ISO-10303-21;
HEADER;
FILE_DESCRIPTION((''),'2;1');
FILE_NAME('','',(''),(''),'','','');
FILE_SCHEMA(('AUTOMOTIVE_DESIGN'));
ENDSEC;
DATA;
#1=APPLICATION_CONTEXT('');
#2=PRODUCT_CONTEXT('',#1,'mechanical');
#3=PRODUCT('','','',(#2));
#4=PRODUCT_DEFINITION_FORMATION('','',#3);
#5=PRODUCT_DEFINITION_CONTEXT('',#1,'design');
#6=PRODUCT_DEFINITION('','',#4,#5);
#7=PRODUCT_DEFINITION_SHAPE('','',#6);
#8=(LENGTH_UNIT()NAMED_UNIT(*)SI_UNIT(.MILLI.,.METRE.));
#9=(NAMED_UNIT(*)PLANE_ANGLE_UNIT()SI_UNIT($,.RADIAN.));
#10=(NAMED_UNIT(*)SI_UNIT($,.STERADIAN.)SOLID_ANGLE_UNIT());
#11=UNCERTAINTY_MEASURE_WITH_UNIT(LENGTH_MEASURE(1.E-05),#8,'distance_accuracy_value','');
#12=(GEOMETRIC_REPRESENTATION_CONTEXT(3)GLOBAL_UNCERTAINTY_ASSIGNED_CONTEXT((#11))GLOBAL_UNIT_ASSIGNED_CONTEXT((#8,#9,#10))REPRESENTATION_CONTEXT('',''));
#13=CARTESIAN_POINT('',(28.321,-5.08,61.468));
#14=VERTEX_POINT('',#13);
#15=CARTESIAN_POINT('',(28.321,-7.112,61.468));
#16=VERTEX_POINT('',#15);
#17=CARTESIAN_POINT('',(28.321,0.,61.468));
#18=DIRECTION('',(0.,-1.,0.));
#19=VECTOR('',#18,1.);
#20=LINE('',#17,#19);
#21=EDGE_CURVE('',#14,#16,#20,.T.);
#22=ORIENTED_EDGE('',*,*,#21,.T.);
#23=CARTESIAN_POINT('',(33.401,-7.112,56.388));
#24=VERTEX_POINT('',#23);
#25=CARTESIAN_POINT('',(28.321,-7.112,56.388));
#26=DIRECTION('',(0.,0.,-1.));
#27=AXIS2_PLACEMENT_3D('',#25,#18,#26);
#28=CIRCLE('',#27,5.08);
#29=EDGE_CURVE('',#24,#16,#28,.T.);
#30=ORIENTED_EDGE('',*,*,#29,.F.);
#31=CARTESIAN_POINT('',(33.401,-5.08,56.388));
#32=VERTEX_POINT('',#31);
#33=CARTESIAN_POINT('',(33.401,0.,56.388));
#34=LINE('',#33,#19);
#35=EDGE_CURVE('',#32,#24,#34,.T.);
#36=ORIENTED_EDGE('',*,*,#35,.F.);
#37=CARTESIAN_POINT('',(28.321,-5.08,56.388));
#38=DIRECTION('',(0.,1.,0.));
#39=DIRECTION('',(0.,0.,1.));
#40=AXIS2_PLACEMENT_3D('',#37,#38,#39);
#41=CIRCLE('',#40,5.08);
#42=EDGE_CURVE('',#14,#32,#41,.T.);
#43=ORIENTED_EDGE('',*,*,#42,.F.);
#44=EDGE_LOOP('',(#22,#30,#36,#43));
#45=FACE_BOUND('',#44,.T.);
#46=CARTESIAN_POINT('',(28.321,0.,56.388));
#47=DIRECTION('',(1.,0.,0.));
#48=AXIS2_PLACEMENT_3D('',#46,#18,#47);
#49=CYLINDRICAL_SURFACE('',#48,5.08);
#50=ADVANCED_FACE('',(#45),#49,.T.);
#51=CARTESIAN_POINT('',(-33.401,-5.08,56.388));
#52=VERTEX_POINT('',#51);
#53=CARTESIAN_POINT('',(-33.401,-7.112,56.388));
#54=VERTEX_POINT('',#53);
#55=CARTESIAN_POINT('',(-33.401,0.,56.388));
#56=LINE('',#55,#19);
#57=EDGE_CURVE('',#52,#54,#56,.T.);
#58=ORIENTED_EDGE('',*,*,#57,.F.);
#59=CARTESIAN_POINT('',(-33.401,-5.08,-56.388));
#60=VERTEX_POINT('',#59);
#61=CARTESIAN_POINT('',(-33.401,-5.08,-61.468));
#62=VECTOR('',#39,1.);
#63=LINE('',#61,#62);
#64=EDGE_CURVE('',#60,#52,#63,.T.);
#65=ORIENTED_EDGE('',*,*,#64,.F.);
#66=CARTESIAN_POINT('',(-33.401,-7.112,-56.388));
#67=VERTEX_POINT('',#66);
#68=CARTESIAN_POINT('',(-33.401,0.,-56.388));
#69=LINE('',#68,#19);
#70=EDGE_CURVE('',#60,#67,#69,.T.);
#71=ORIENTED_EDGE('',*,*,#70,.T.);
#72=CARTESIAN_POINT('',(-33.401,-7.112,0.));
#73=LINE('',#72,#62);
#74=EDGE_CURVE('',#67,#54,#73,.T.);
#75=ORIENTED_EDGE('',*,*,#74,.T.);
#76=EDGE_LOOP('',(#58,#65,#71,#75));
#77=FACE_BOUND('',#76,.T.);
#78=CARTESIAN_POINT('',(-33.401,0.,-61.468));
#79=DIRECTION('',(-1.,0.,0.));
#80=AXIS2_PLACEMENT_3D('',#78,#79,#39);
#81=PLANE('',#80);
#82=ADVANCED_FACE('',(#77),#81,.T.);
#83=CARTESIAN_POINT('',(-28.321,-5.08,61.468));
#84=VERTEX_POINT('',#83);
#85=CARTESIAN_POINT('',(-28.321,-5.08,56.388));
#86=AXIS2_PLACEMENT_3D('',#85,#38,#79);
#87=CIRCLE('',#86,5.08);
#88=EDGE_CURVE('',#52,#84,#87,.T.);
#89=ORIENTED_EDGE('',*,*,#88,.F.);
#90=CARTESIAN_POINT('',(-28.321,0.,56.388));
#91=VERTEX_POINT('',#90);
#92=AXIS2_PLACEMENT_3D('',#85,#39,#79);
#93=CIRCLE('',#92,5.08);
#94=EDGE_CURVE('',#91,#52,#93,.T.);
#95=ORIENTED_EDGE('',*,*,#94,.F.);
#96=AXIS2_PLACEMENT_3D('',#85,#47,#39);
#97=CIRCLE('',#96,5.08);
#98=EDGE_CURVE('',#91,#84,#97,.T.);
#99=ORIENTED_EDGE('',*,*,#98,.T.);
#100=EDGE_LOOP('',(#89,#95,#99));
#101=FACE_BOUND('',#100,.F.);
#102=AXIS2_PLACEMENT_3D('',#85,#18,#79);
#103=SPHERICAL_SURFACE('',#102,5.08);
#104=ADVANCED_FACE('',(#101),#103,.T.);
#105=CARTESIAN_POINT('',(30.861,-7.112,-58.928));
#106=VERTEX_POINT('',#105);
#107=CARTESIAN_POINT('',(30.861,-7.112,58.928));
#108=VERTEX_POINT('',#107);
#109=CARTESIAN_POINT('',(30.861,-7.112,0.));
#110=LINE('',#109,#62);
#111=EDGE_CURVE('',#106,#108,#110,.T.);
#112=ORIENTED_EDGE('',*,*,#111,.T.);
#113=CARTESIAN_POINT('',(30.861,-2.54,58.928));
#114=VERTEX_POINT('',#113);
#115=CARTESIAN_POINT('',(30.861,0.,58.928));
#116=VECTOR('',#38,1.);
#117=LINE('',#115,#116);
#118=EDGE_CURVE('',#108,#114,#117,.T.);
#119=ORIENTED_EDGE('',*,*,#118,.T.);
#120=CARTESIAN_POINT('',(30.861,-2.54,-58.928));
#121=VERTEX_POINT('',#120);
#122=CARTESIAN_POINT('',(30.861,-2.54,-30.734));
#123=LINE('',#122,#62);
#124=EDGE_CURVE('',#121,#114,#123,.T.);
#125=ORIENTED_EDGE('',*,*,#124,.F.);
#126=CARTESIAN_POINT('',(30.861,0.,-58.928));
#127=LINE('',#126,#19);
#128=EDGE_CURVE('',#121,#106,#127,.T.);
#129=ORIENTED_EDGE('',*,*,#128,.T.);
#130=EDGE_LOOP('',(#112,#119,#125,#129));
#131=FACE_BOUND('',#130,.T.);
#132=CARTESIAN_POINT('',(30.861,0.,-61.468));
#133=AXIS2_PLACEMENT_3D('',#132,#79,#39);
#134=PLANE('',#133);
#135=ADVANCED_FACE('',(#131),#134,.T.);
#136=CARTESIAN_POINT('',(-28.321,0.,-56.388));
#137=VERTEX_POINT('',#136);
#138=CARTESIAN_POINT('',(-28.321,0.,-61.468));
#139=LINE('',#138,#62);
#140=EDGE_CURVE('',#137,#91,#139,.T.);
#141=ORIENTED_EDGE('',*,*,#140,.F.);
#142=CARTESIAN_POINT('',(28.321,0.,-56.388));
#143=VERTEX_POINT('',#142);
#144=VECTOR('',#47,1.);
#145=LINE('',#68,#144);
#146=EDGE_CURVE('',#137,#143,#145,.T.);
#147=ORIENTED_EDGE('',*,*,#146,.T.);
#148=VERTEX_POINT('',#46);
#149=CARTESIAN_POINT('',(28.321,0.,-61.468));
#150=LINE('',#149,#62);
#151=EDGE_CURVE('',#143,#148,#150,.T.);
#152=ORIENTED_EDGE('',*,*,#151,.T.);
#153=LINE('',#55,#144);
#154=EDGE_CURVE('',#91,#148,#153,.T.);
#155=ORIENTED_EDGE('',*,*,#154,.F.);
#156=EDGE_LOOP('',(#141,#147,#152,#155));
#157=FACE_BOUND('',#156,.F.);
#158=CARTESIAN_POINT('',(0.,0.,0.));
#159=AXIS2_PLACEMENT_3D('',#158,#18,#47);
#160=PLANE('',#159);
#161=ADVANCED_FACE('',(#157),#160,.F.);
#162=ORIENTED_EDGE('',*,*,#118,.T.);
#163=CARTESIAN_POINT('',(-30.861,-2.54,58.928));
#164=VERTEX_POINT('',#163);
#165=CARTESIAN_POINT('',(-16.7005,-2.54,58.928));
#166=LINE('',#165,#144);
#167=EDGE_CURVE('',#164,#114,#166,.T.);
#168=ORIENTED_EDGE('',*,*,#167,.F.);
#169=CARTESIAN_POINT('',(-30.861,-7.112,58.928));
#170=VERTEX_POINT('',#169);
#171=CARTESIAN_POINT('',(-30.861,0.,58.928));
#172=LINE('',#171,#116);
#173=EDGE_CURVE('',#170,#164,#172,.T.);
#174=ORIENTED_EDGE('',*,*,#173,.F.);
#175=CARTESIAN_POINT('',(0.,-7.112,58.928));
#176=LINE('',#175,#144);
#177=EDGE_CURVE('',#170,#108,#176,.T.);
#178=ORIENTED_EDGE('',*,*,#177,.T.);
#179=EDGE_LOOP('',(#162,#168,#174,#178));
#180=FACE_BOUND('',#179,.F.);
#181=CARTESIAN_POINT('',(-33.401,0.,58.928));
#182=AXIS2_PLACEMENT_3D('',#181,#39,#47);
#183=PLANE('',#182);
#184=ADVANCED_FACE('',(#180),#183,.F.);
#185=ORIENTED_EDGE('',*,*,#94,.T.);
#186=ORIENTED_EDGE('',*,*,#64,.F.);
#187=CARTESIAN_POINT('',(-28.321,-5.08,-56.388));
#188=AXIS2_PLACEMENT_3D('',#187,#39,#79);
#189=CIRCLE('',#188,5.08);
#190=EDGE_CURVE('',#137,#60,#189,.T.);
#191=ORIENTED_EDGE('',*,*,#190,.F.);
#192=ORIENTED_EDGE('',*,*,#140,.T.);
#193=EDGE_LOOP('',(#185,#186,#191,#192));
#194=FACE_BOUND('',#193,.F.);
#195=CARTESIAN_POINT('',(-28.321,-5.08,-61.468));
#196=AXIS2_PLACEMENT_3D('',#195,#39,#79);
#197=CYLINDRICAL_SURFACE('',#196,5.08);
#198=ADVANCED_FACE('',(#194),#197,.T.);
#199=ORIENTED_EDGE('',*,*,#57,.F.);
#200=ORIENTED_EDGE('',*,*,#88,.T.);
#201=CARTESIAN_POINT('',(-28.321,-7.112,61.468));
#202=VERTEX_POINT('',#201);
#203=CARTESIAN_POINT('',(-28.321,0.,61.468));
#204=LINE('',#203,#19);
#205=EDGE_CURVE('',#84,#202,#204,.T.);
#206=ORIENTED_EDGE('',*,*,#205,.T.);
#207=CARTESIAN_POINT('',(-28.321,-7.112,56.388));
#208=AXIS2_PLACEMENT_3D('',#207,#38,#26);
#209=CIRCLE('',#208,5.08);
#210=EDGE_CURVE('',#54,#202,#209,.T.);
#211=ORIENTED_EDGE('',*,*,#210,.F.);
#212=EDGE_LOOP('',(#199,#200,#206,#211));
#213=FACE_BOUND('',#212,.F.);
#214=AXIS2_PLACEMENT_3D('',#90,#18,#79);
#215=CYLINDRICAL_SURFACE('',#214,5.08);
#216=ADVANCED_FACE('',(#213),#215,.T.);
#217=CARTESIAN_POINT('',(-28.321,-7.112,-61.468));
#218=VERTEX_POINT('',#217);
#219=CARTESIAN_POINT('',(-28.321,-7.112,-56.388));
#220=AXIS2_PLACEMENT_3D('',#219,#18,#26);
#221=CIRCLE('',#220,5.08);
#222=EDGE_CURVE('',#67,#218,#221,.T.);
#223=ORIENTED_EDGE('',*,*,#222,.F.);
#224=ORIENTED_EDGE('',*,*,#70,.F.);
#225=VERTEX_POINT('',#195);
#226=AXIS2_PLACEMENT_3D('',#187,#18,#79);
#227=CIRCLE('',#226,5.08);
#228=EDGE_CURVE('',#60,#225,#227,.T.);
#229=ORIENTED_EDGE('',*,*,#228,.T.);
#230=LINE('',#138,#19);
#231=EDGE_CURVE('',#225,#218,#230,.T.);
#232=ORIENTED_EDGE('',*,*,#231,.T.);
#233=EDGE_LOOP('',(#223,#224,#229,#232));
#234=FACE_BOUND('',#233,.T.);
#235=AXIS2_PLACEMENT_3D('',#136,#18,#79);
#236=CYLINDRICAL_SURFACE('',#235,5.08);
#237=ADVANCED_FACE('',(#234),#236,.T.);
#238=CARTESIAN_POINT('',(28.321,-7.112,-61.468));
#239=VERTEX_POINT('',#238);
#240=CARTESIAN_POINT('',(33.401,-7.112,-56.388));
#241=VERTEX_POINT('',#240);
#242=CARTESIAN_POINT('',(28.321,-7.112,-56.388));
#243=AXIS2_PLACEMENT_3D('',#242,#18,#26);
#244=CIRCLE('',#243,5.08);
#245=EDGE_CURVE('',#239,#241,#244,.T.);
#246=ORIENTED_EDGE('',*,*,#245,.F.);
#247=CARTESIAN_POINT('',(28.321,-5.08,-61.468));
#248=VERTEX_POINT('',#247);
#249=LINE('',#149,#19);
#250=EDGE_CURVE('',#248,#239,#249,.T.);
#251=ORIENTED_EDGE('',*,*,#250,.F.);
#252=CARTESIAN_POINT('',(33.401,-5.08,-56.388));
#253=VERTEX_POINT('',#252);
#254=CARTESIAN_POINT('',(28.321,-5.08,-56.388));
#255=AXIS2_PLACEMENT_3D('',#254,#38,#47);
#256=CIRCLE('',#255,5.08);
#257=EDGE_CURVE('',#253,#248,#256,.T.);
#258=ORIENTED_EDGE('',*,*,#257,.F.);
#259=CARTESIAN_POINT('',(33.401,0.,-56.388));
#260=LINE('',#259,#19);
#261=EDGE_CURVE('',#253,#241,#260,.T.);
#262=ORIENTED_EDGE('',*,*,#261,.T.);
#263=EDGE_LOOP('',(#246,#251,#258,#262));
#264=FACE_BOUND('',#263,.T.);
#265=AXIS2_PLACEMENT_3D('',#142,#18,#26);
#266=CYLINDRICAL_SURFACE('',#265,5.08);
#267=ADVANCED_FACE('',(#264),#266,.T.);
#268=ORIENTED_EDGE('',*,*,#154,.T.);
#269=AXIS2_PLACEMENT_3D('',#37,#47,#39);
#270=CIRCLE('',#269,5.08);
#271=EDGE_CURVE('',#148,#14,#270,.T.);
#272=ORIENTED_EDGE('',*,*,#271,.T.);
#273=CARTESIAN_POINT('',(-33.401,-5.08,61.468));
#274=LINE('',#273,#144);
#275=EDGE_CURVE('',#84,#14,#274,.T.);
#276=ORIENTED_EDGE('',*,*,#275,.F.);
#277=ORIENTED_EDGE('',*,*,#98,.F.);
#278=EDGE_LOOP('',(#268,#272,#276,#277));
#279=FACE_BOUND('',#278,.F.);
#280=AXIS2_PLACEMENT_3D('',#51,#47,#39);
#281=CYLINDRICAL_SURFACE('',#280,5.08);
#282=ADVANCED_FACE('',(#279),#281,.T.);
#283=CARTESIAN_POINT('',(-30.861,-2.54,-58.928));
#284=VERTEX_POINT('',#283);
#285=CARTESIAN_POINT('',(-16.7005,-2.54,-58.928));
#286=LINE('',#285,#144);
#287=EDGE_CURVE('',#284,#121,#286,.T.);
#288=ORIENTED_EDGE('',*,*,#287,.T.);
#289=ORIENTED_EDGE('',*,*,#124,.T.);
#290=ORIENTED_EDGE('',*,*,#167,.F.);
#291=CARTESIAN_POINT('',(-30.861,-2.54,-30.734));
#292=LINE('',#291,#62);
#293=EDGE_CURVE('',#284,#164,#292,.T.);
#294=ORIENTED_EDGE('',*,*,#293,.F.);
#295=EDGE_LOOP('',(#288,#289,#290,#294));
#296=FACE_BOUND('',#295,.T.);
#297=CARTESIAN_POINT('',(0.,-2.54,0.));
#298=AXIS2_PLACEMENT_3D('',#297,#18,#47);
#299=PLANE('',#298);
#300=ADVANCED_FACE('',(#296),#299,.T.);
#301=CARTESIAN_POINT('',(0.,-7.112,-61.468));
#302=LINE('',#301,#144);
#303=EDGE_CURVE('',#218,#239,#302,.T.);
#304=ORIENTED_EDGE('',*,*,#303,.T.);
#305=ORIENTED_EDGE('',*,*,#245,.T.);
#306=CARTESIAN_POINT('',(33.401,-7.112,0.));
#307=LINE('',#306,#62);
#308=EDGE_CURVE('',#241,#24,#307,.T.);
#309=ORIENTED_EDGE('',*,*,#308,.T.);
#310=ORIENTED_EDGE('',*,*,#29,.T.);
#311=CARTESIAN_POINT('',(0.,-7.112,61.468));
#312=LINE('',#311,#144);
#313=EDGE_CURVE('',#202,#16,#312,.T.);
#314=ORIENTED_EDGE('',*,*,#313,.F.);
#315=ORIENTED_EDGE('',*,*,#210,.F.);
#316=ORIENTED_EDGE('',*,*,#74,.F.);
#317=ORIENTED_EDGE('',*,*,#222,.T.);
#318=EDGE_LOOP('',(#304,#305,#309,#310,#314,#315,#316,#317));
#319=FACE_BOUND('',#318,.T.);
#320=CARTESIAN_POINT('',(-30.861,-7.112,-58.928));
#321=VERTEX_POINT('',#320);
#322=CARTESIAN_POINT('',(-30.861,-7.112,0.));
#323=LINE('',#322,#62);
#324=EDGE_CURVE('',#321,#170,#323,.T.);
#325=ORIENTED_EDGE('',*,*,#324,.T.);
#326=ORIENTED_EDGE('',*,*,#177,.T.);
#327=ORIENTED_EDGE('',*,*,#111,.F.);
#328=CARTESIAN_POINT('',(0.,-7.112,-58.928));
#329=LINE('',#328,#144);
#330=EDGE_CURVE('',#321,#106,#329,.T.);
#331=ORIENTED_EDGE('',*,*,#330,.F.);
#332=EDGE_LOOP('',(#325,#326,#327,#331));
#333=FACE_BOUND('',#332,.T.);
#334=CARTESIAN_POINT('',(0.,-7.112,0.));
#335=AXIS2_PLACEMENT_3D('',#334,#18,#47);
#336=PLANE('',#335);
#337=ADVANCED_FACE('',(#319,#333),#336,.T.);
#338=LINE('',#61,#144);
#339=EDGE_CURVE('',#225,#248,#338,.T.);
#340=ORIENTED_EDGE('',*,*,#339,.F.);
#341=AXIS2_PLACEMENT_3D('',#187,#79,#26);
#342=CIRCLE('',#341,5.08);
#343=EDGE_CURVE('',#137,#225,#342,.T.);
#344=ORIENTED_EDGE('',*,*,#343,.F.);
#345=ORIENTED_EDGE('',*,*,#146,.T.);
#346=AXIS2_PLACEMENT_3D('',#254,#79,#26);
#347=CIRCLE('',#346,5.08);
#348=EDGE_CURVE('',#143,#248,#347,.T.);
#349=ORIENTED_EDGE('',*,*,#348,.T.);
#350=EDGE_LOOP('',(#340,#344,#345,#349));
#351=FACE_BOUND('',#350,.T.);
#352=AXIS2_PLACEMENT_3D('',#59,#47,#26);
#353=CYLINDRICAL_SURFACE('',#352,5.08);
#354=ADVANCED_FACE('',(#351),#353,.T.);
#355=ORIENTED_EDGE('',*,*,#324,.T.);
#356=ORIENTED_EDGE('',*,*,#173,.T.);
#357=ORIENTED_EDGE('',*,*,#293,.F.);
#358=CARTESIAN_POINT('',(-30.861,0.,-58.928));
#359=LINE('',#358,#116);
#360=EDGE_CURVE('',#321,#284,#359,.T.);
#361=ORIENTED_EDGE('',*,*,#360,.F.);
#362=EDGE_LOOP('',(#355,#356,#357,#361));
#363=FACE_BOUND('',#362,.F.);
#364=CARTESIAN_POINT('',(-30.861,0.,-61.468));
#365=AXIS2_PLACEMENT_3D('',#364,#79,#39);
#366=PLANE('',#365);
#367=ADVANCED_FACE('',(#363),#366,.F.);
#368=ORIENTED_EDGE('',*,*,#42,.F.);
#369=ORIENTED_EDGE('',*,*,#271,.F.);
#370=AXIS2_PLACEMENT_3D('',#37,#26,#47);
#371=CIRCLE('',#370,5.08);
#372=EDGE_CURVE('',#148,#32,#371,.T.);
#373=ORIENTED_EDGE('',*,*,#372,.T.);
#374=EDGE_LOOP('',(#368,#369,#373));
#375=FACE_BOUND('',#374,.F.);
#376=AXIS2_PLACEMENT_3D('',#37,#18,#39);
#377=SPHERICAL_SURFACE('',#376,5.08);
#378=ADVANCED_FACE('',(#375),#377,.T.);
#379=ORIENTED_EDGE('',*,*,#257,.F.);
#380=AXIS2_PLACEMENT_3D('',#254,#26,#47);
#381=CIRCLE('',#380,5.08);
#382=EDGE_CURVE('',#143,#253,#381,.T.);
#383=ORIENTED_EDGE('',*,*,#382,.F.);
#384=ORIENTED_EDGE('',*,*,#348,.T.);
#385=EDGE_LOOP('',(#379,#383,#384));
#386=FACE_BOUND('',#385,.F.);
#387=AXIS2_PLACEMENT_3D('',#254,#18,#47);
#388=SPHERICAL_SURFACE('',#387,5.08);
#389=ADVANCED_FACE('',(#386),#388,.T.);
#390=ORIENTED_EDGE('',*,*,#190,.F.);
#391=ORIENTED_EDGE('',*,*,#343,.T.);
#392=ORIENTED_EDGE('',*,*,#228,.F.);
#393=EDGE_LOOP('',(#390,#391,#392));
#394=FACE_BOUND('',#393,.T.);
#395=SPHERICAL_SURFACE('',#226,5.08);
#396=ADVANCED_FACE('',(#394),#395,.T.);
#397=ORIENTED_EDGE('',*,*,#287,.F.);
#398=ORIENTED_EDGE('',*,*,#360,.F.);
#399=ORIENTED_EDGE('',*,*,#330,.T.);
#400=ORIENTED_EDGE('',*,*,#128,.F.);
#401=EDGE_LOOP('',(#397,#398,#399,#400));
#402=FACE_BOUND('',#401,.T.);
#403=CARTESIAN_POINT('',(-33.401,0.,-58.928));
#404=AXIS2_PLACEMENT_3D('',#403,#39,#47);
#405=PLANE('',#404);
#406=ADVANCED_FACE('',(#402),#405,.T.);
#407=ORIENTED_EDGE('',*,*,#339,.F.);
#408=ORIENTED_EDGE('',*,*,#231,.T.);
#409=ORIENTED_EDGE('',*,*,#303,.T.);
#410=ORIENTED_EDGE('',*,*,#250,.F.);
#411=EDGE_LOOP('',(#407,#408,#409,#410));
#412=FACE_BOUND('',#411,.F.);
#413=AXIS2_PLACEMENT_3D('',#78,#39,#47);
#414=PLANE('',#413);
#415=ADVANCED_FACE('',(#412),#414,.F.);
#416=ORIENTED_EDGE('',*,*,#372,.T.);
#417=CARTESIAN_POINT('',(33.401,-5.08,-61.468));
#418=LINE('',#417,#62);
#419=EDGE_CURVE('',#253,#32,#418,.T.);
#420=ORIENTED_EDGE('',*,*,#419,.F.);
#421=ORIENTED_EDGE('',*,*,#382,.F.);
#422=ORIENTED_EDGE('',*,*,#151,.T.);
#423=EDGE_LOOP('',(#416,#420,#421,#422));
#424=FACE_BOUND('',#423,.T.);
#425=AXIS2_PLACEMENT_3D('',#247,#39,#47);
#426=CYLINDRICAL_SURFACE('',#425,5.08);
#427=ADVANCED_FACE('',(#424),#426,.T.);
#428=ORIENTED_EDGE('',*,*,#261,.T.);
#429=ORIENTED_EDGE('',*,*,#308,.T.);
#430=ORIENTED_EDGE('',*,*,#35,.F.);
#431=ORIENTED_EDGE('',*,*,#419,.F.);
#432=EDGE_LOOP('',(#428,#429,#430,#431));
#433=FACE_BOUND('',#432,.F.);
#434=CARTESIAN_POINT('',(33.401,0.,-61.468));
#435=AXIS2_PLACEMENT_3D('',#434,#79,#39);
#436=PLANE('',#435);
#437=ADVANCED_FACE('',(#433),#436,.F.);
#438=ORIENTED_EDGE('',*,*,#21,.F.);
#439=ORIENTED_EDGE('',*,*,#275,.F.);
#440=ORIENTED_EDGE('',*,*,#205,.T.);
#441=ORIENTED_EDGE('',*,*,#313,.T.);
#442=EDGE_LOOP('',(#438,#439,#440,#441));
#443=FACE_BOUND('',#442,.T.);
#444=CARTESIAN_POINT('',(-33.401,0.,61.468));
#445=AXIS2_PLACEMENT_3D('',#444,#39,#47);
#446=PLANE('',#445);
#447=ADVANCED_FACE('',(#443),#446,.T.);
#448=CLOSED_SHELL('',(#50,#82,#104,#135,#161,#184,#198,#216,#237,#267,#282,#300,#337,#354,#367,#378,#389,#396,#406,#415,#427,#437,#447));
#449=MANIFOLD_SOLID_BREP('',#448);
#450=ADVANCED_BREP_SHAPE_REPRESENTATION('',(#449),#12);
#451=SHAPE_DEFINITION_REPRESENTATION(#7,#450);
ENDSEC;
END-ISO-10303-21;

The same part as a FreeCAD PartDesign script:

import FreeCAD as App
import Part
import Sketcher
from FreeCAD import Vector
Q = App.Units.Quantity


def edges_at(feature, points):
    """Names of the edges that pass closest to the given points."""
    edges = feature.Shape.Edges
    near = lambda p: min(range(len(edges)), key=lambda i: edges[i].distToShape(Part.Vertex(*p))[0])
    return sorted({f"Edge{near(p) + 1}" for p in points})


def faces_at(feature, points):
    """Names of the faces that lie closest to the given points."""
    faces = feature.Shape.Faces
    near = lambda p: min(range(len(faces)), key=lambda i: faces[i].distToShape(Part.Vertex(*p))[0])
    return sorted({f"Face{near(p) + 1}" for p in points})

doc = App.newDocument("Part")
params = doc.addObject("Spreadsheet::Sheet", "Params")
for row, (alias, value) in enumerate([
    ("sketch1_width", "2.63 in"),
    ("sketch1_height", "4.84 in"),
    ("pad1_length", "0.28 in"),
    ("thickness_wall", "0.1 in"),
    ("fillet_radius", "0.2 in"),
], start=1):
    params.set(f"A{row}", alias)
    params.set(f"B{row}", "=" + value)
    params.setAlias(f"B{row}", alias)

body = doc.addObject("PartDesign::Body", "Body")

sketch1 = body.newObject("Sketcher::SketchObject", "Sketch")
sketch1.AttachmentSupport = (doc.getObject("XZ_Plane"), [""])
sketch1.MapMode = "FlatFace"
sketch1.addGeometry(Part.LineSegment(Vector(-33, 61, 0), Vector(-33, -61, 0)), False)
sketch1.addGeometry(Part.LineSegment(Vector(-33, -61, 0), Vector(33, -61, 0)), False)
sketch1.addGeometry(Part.LineSegment(Vector(33, -61, 0), Vector(33, 61, 0)), False)
sketch1.addGeometry(Part.LineSegment(Vector(33, 61, 0), Vector(-33, 61, 0)), False)
sketch1.addConstraint(Sketcher.Constraint("Coincident", 0, 2, 1, 1))
sketch1.addConstraint(Sketcher.Constraint("Coincident", 1, 2, 2, 1))
sketch1.addConstraint(Sketcher.Constraint("Coincident", 2, 2, 3, 1))
sketch1.addConstraint(Sketcher.Constraint("Coincident", 3, 2, 0, 1))
sketch1.addConstraint(Sketcher.Constraint("Vertical", 0))
sketch1.addConstraint(Sketcher.Constraint("Horizontal", 1))
sketch1.addConstraint(Sketcher.Constraint("Vertical", 2))
sketch1.addConstraint(Sketcher.Constraint("Horizontal", 3))
sketch1.addConstraint(Sketcher.Constraint("Symmetric", 0, 2, 2, 2, -1, 1))
sketch1.addConstraint(Sketcher.Constraint("DistanceX", 1, 1, 1, 2, Q("2.63 in")))
sketch1.addConstraint(Sketcher.Constraint("DistanceY", 0, 2, 0, 1, Q("4.84 in")))
sketch1.setExpression("Constraints[9]", "Params.sketch1_width")
sketch1.setExpression("Constraints[10]", "Params.sketch1_height")
pad1 = body.newObject("PartDesign::Pad", "Pad")
pad1.Profile = sketch1
pad1.setExpression("Length", "Params.pad1_length")
doc.recompute()

thickness = body.newObject("PartDesign::Thickness", "Thickness")
thickness.Base = (pad1, faces_at(pad1, [(0, -7.112, 0)]))
thickness.setExpression("Value", "Params.thickness_wall")
thickness.Reversed = True
thickness.Join = "Arc"
doc.recompute()

fillet = body.newObject("PartDesign::Fillet", "Fillet")
fillet.Base = (thickness, edges_at(thickness, [
    (33.401, -3.556, 61.468),
    (33.401, -3.556, -61.468),
    (-33.401, -3.556, -61.468),
    (-33.401, -3.556, 61.468),
    (-33.401, 0, 0),
    (0, 0, 61.468),
    (33.401, 0, 0),
    (0, 0, -61.468),
]))
fillet.setExpression("Radius", "Params.fillet_radius")

doc.recompute()
